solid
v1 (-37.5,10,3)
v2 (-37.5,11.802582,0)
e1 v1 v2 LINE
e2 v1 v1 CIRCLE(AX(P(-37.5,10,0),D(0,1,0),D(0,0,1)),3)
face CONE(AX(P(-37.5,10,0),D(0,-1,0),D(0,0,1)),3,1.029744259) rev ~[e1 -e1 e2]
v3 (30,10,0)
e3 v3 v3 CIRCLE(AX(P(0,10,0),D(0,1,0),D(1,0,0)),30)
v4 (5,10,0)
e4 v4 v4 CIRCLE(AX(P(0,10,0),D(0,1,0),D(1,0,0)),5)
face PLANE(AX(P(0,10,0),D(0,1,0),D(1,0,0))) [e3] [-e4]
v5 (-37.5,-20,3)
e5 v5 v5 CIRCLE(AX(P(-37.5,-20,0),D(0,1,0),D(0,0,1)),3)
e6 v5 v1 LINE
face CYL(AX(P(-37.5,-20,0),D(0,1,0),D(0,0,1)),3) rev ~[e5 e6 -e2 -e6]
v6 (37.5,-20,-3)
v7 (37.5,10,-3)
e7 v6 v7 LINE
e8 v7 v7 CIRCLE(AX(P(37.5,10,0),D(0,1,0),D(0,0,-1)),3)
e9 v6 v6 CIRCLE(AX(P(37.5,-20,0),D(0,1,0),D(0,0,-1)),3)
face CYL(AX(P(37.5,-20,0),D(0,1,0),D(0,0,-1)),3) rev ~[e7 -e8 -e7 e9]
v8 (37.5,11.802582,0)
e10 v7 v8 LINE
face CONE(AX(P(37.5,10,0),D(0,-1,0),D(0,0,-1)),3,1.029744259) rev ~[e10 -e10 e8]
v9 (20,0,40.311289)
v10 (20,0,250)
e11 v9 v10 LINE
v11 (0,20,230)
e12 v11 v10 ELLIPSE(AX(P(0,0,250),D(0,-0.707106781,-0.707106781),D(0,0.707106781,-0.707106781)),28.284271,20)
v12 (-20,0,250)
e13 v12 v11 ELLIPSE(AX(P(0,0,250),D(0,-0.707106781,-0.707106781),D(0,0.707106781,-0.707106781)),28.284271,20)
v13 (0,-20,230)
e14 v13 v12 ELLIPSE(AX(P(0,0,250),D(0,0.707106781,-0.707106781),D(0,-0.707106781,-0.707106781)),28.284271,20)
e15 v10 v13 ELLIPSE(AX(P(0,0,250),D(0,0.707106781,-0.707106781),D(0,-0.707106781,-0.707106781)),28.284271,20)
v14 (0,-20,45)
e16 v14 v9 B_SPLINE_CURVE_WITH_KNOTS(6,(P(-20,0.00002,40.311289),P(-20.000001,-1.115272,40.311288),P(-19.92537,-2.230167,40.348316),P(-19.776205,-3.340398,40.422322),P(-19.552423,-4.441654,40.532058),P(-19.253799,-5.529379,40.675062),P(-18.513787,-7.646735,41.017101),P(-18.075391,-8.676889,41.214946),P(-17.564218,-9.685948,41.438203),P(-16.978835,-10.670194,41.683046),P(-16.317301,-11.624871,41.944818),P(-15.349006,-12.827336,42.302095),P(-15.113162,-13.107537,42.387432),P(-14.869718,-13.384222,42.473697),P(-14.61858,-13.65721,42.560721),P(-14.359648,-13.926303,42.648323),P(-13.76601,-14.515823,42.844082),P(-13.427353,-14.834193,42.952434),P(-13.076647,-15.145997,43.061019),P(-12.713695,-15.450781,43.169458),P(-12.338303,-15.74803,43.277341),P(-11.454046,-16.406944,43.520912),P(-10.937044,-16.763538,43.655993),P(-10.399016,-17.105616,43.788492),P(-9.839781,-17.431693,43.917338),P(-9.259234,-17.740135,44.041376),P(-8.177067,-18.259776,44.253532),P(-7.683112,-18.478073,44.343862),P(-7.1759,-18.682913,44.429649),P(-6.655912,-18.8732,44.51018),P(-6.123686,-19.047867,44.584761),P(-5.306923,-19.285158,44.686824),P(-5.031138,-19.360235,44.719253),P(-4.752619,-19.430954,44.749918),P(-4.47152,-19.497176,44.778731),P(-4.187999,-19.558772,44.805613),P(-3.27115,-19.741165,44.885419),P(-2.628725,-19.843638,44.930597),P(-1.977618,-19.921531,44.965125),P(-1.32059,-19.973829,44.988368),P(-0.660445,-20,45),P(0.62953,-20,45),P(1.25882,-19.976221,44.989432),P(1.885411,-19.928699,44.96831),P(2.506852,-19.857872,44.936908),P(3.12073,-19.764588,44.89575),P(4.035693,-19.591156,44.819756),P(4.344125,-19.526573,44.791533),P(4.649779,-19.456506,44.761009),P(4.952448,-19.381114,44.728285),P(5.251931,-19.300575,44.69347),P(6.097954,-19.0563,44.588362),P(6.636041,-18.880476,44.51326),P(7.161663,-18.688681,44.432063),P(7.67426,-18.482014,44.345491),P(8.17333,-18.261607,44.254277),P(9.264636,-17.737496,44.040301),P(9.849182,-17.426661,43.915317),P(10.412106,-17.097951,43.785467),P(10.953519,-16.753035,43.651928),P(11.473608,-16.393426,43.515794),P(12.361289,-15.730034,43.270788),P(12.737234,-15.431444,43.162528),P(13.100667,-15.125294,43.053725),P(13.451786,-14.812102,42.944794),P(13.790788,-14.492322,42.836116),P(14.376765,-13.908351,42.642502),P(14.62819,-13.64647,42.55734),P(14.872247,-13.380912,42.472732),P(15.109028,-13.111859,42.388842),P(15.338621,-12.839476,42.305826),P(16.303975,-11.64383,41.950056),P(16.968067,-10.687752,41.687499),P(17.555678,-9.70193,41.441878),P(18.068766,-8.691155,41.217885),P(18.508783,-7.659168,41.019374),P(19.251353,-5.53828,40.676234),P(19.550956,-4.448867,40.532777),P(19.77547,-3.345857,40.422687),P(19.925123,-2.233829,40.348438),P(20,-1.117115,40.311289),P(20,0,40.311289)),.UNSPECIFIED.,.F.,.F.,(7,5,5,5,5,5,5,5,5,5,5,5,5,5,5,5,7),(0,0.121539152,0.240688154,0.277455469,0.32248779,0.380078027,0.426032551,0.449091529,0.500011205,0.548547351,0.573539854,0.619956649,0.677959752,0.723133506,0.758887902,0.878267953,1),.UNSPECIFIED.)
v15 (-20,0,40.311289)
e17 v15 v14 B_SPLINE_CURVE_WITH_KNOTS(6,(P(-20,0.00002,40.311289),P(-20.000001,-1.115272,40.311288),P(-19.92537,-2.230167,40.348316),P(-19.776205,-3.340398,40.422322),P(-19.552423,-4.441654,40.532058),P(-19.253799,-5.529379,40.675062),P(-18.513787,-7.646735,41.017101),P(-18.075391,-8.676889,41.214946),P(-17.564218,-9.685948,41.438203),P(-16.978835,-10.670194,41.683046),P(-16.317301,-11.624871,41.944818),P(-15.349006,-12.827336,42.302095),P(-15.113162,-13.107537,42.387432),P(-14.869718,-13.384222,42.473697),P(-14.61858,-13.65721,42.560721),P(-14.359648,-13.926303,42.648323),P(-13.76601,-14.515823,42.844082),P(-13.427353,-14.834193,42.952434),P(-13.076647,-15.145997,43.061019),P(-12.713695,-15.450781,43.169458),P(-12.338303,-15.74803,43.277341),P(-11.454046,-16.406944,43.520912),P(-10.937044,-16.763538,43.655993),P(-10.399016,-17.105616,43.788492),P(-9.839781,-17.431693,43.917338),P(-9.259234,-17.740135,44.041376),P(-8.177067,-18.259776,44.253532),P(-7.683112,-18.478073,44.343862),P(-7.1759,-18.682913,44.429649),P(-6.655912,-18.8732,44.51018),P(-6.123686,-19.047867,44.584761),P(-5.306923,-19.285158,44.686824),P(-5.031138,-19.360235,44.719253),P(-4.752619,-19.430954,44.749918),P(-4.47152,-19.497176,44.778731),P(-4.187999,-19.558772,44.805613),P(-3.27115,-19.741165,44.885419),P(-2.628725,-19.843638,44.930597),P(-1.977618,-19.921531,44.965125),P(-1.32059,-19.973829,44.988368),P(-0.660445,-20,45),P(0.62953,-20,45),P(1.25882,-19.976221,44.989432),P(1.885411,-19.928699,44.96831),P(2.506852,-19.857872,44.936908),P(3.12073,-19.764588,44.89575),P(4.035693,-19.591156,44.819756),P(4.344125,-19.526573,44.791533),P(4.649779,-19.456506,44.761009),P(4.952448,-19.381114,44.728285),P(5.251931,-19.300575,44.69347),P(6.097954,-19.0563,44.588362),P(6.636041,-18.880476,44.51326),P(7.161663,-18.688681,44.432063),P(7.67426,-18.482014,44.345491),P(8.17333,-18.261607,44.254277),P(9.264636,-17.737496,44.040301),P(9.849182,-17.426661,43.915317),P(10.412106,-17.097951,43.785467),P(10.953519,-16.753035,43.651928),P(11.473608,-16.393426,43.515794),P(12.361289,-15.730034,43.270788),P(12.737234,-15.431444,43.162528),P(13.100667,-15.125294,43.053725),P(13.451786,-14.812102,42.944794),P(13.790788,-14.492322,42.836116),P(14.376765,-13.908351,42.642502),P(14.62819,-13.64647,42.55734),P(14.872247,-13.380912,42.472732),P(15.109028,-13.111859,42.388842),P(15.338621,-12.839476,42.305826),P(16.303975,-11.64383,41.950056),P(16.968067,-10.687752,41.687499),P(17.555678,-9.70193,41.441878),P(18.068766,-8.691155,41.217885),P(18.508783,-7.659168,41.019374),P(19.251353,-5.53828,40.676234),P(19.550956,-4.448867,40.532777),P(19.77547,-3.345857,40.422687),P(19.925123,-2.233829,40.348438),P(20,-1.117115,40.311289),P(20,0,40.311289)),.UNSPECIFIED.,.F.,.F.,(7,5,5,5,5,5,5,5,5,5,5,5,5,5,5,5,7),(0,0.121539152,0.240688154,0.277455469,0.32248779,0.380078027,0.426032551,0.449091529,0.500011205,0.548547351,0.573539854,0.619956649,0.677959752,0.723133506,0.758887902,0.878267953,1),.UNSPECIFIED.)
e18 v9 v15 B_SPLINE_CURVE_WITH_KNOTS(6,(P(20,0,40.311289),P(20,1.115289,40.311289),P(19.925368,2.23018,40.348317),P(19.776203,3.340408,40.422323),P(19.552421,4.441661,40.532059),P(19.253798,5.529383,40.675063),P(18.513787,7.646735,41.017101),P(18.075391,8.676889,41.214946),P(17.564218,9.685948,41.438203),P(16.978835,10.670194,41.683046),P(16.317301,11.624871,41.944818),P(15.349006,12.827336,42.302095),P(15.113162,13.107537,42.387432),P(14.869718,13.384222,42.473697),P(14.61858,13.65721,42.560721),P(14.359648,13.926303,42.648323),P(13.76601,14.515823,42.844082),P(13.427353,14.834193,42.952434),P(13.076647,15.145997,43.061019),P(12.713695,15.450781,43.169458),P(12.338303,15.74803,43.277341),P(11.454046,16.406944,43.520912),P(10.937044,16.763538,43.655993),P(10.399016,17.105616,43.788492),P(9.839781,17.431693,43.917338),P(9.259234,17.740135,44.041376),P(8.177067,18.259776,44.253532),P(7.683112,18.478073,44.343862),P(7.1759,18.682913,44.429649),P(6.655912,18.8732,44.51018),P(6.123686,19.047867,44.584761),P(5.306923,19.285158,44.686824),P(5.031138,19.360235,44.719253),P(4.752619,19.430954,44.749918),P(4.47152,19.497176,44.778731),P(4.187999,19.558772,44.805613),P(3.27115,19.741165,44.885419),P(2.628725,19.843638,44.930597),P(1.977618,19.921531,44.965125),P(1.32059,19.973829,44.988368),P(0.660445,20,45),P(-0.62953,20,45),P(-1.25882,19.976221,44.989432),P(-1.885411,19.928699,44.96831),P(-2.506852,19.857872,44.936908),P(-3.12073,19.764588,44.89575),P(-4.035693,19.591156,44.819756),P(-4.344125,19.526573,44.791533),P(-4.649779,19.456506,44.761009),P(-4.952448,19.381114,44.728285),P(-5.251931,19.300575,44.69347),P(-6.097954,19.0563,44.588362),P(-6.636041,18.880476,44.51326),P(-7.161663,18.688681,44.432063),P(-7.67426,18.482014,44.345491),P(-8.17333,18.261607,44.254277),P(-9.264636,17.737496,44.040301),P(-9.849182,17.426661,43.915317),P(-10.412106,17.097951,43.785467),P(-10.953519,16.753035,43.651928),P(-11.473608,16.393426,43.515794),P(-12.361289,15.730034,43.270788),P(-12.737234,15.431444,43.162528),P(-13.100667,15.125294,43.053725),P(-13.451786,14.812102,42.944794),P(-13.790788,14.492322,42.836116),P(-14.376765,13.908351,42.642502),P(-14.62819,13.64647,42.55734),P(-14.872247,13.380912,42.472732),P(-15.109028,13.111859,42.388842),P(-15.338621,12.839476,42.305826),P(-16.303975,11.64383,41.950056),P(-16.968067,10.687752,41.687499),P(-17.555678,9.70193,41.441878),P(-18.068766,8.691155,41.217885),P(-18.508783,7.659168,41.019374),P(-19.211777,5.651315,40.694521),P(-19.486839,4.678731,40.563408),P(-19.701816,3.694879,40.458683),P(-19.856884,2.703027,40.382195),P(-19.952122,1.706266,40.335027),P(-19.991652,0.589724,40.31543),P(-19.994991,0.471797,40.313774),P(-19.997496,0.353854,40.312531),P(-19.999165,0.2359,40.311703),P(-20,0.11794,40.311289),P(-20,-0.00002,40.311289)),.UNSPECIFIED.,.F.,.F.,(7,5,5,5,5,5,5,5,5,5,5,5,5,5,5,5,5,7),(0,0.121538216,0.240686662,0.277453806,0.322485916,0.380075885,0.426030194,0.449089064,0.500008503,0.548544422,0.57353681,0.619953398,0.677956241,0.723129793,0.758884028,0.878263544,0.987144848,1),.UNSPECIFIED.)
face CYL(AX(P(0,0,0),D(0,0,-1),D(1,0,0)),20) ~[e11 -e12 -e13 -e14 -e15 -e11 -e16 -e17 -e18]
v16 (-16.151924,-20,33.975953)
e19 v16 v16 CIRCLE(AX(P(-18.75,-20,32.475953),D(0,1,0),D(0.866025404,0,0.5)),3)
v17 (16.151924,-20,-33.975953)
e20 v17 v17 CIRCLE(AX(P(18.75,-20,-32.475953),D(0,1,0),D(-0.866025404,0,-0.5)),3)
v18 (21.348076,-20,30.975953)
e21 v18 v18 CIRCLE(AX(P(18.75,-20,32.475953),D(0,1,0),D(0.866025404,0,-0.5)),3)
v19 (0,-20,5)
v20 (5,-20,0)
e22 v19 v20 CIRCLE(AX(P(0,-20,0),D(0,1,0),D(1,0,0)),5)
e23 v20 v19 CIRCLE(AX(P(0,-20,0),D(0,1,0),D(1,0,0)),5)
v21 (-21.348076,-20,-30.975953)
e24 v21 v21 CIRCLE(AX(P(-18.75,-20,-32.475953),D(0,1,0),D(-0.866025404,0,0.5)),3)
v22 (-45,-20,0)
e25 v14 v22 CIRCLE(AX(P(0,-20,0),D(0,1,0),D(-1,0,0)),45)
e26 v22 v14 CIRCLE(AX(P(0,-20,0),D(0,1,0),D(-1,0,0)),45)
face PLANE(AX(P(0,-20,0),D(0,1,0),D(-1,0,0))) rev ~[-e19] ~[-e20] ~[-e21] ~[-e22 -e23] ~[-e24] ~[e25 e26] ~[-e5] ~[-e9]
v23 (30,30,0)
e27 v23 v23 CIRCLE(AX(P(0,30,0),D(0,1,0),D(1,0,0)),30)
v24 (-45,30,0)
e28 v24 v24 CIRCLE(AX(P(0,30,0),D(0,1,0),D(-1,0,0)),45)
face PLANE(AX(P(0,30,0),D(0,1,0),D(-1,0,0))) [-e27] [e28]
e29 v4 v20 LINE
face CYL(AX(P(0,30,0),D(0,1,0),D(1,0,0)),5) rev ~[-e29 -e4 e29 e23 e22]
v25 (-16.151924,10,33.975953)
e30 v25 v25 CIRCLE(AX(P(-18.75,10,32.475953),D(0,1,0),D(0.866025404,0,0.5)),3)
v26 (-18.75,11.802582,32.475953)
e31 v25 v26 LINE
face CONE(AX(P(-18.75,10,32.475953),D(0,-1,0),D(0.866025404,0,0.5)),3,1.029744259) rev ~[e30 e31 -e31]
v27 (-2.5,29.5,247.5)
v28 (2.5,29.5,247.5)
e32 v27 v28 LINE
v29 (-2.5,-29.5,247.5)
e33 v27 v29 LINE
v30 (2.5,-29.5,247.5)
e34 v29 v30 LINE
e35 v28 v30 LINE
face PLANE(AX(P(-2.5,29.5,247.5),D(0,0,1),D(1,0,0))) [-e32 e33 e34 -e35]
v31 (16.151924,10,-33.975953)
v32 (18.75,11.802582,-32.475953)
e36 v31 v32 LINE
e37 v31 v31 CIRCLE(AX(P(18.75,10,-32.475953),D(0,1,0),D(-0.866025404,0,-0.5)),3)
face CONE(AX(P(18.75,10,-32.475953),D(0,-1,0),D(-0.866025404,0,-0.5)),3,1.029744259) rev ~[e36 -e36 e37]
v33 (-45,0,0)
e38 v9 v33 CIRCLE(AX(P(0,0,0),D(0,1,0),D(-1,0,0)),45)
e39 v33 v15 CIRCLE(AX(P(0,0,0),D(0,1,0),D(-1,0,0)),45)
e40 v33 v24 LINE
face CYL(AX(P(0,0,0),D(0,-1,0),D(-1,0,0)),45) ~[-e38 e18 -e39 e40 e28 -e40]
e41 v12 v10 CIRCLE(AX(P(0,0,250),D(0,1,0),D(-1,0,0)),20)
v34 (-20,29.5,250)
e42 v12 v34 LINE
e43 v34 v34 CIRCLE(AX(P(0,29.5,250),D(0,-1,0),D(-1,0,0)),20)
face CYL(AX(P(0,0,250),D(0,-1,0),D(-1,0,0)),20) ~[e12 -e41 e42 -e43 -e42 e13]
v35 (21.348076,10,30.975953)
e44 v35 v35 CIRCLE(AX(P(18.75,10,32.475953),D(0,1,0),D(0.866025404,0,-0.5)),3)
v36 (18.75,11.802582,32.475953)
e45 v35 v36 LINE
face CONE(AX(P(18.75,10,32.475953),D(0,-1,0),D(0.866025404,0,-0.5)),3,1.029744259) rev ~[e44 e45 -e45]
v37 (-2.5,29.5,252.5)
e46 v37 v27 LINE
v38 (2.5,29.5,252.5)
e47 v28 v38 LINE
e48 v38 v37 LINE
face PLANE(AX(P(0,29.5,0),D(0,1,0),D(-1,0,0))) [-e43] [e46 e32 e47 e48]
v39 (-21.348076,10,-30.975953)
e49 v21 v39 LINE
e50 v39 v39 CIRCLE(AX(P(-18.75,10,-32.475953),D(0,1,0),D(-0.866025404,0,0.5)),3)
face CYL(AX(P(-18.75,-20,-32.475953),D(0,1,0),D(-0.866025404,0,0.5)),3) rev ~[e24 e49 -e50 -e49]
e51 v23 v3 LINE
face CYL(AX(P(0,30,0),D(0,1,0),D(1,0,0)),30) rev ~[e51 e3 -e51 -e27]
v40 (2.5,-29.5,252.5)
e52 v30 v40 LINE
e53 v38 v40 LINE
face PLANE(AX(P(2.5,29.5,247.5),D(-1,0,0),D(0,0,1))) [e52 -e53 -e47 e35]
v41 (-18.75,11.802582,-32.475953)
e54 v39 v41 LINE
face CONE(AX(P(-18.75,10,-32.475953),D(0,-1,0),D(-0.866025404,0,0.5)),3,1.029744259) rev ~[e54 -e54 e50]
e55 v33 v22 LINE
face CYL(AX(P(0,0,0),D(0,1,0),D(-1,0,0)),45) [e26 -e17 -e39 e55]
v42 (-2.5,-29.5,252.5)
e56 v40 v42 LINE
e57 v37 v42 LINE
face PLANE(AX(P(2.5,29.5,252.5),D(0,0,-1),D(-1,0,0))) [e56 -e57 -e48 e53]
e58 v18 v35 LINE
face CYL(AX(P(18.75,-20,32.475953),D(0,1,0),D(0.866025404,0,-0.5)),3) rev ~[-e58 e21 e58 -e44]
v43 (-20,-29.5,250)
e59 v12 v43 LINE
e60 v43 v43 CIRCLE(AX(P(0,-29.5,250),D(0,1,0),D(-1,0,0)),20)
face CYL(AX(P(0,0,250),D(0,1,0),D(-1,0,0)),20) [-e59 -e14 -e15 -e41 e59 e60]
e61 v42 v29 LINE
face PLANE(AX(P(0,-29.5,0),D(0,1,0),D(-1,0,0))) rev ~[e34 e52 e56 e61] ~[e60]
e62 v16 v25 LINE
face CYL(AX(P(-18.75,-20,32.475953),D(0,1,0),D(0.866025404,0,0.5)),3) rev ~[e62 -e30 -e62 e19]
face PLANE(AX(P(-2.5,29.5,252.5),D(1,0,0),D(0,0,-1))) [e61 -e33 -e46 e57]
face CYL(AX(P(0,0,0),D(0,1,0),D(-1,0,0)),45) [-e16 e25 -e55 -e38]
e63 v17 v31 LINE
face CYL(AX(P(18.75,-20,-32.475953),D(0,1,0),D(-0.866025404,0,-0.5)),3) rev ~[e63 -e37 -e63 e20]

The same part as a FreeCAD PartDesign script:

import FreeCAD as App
import Part
import Sketcher
from FreeCAD import Vector
Q = App.Units.Quantity

doc = App.newDocument("Part")
body = doc.addObject("PartDesign::Body", "Body")

# Sketch on XY plane
sketch1 = body.newObject("Sketcher::SketchObject", "Sketch")
sketch1.AttachmentSupport = (doc.getObject("XY_Plane"), [""])
sketch1.MapMode = "FlatFace"
sketch1.addGeometry(Part.Circle(Vector(0, 0, 0), Vector(0, 0, 1), 20), False)
sketch1.addConstraint([
    Sketcher.Constraint("Coincident", 0, 3, -1, 1),
    Sketcher.Constraint("Diameter", 0, Q("40 mm")),
])
pad1 = body.newObject("PartDesign::Pad", "Pad")
pad1.Profile = sketch1
pad1.Length = 250

# Sketch on XZ plane
sketch2 = body.newObject("Sketcher::SketchObject", "Sketch001")
sketch2.AttachmentSupport = (doc.getObject("XZ_Plane"), [""])
sketch2.MapMode = "FlatFace"
sketch2.addGeometry(Part.Circle(Vector(0, 0, 0), Vector(0, 0, 1), 45), False)
sketch2.addConstraint([
    Sketcher.Constraint("Coincident", 0, 3, -1, 1),
    Sketcher.Constraint("Diameter", 0, Q("90 mm")),
])
pad2 = body.newObject("PartDesign::Pad", "Pad001")
pad2.Profile = sketch2
pad2.Type = "TwoLengths"
pad2.Length = 30
pad2.Length2 = 20
pad2.Reversed = True

# Sketch on XZ plane
sketch3 = body.newObject("Sketcher::SketchObject", "Sketch002")
sketch3.AttachmentSupport = (doc.getObject("XZ_Plane"), [""])
sketch3.MapMode = "FlatFace"
sketch3.AttachmentOffset = App.Placement(Vector(0, 0, -30), App.Rotation())
sketch3.addGeometry(Part.Circle(Vector(0, 0, 0), Vector(0, 0, 1), 5), False)
sketch3.addConstraint([
    Sketcher.Constraint("Coincident", 0, 3, -1, 1),
    Sketcher.Constraint("Diameter", 0, Q("10 mm")),
])
pocket1 = body.newObject("PartDesign::Pocket", "Pocket")
pocket1.Profile = sketch3
pocket1.Type = "ThroughAll"
pocket1.Midplane = True

# Sketch on XZ plane
sketch4 = body.newObject("Sketcher::SketchObject", "Sketch003")
sketch4.AttachmentSupport = (doc.getObject("XZ_Plane"), [""])
sketch4.MapMode = "FlatFace"
sketch4.AttachmentOffset = App.Placement(Vector(0, 0, -30), App.Rotation())
sketch4.addGeometry([
    Part.Circle(Vector(0, 0, 0), Vector(0, 0, 1), 30),
    Part.Circle(Vector(0, 0, 0), Vector(0, 0, 1), 5),
], False)
sketch4.addConstraint([
    Sketcher.Constraint("Coincident", 0, 3, -1, 1),
    Sketcher.Constraint("Coincident", 1, 3, -1, 1),
    Sketcher.Constraint("Diameter", 0, Q("60 mm")),
    Sketcher.Constraint("Diameter", 1, Q("10 mm")),
])
pocket2 = body.newObject("PartDesign::Pocket", "Pocket001")
pocket2.Profile = sketch4
pocket2.Length = 20
pocket2.Reversed = True

# Sketch on XZ plane
sketch5 = body.newObject("Sketcher::SketchObject", "Sketch004")
sketch5.AttachmentSupport = (doc.getObject("XZ_Plane"), [""])
sketch5.MapMode = "FlatFace"
sketch5.addGeometry(Part.Circle(Vector(0, 250, 0), Vector(0, 0, 1), 20), False)
sketch5.addConstraint([
    Sketcher.Constraint("PointOnObject", 0, 3, -2),
    Sketcher.Constraint("Diameter", 0, Q("40 mm")),
    Sketcher.Constraint("DistanceY", -1, 1, 0, 3, Q("250 mm")),
])
pad3 = body.newObject("PartDesign::Pad", "Pad002")
pad3.Profile = sketch5
pad3.Length = 59
pad3.Midplane = True

# Sketch on XZ plane
sketch6 = body.newObject("Sketcher::SketchObject", "Sketch005")
sketch6.AttachmentSupport = (doc.getObject("XZ_Plane"), [""])
sketch6.MapMode = "FlatFace"
sketch6.AttachmentOffset = App.Placement(Vector(0, 0, -29.5), App.Rotation())
sketch6.addGeometry([
    Part.LineSegment(Vector(2, 248, 0), Vector(-2, 248, 0)),
    Part.LineSegment(Vector(-2, 248, 0), Vector(-2, 252, 0)),
    Part.LineSegment(Vector(-2, 252, 0), Vector(2, 252, 0)),
    Part.LineSegment(Vector(2, 252, 0), Vector(2, 248, 0)),
], False)
sketch6.addConstraint([
    Sketcher.Constraint("Coincident", 0, 2, 1, 1),
    Sketcher.Constraint("Coincident", 1, 2, 2, 1),
    Sketcher.Constraint("Coincident", 2, 2, 3, 1),
    Sketcher.Constraint("Coincident", 3, 2, 0, 1),
    Sketcher.Constraint("Horizontal", 0),
    Sketcher.Constraint("Vertical", 1),
    Sketcher.Constraint("Horizontal", 2),
    Sketcher.Constraint("Vertical", 3),
    Sketcher.Constraint("Equal", 2, 1),
    Sketcher.Constraint("DistanceX", 0, 2, 0, 1, Q("5 mm")),
    Sketcher.Constraint("DistanceX", 0, 2, -1, 1, Q("2.5 mm")),
    Sketcher.Constraint("DistanceY", -1, 1, 0, 2, Q("247.5 mm")),
])
pocket3 = body.newObject("PartDesign::Pocket", "Pocket002")
pocket3.Profile = sketch6
pocket3.Type = "ThroughAll"
pocket3.Reversed = True

# Sketch on XZ plane
sketch7 = body.newObject("Sketcher::SketchObject", "Sketch006")
sketch7.AttachmentSupport = (doc.getObject("XZ_Plane"), [""])
sketch7.MapMode = "FlatFace"
sketch7.AttachmentOffset = App.Placement(Vector(0, 0, 20), App.Rotation())
sketch7.addGeometry(Part.Circle(Vector(37.5, 0, 0), Vector(0, 0, 1), 3), False)
sketch7.addConstraint([
    Sketcher.Constraint("PointOnObject", 0, 3, -1),
    Sketcher.Constraint("Diameter", 0, Q("6 mm")),
    Sketcher.Constraint("DistanceX", -1, 1, 0, 3, Q("37.5 mm")),
])
doc.recompute()
hole = body.newObject("PartDesign::Hole", "Hole")
hole.Profile = sketch7
hole.ThreadType = "None"
hole.Diameter = 6
hole.DepthType = "Dimension"
hole.Depth = 30
hole.DrillPoint = "Angled"
hole.DrillPointAngle = 118
doc.recompute()

polarpattern = body.newObject("PartDesign::PolarPattern", "PolarPattern")
polarpattern.Originals = [hole]
polarpattern.Axis = (doc.getObject("Y_Axis"), [""])
polarpattern.Angle = 360
polarpattern.Occurrences = 6
body.Tip = polarpattern

doc.recompute()
